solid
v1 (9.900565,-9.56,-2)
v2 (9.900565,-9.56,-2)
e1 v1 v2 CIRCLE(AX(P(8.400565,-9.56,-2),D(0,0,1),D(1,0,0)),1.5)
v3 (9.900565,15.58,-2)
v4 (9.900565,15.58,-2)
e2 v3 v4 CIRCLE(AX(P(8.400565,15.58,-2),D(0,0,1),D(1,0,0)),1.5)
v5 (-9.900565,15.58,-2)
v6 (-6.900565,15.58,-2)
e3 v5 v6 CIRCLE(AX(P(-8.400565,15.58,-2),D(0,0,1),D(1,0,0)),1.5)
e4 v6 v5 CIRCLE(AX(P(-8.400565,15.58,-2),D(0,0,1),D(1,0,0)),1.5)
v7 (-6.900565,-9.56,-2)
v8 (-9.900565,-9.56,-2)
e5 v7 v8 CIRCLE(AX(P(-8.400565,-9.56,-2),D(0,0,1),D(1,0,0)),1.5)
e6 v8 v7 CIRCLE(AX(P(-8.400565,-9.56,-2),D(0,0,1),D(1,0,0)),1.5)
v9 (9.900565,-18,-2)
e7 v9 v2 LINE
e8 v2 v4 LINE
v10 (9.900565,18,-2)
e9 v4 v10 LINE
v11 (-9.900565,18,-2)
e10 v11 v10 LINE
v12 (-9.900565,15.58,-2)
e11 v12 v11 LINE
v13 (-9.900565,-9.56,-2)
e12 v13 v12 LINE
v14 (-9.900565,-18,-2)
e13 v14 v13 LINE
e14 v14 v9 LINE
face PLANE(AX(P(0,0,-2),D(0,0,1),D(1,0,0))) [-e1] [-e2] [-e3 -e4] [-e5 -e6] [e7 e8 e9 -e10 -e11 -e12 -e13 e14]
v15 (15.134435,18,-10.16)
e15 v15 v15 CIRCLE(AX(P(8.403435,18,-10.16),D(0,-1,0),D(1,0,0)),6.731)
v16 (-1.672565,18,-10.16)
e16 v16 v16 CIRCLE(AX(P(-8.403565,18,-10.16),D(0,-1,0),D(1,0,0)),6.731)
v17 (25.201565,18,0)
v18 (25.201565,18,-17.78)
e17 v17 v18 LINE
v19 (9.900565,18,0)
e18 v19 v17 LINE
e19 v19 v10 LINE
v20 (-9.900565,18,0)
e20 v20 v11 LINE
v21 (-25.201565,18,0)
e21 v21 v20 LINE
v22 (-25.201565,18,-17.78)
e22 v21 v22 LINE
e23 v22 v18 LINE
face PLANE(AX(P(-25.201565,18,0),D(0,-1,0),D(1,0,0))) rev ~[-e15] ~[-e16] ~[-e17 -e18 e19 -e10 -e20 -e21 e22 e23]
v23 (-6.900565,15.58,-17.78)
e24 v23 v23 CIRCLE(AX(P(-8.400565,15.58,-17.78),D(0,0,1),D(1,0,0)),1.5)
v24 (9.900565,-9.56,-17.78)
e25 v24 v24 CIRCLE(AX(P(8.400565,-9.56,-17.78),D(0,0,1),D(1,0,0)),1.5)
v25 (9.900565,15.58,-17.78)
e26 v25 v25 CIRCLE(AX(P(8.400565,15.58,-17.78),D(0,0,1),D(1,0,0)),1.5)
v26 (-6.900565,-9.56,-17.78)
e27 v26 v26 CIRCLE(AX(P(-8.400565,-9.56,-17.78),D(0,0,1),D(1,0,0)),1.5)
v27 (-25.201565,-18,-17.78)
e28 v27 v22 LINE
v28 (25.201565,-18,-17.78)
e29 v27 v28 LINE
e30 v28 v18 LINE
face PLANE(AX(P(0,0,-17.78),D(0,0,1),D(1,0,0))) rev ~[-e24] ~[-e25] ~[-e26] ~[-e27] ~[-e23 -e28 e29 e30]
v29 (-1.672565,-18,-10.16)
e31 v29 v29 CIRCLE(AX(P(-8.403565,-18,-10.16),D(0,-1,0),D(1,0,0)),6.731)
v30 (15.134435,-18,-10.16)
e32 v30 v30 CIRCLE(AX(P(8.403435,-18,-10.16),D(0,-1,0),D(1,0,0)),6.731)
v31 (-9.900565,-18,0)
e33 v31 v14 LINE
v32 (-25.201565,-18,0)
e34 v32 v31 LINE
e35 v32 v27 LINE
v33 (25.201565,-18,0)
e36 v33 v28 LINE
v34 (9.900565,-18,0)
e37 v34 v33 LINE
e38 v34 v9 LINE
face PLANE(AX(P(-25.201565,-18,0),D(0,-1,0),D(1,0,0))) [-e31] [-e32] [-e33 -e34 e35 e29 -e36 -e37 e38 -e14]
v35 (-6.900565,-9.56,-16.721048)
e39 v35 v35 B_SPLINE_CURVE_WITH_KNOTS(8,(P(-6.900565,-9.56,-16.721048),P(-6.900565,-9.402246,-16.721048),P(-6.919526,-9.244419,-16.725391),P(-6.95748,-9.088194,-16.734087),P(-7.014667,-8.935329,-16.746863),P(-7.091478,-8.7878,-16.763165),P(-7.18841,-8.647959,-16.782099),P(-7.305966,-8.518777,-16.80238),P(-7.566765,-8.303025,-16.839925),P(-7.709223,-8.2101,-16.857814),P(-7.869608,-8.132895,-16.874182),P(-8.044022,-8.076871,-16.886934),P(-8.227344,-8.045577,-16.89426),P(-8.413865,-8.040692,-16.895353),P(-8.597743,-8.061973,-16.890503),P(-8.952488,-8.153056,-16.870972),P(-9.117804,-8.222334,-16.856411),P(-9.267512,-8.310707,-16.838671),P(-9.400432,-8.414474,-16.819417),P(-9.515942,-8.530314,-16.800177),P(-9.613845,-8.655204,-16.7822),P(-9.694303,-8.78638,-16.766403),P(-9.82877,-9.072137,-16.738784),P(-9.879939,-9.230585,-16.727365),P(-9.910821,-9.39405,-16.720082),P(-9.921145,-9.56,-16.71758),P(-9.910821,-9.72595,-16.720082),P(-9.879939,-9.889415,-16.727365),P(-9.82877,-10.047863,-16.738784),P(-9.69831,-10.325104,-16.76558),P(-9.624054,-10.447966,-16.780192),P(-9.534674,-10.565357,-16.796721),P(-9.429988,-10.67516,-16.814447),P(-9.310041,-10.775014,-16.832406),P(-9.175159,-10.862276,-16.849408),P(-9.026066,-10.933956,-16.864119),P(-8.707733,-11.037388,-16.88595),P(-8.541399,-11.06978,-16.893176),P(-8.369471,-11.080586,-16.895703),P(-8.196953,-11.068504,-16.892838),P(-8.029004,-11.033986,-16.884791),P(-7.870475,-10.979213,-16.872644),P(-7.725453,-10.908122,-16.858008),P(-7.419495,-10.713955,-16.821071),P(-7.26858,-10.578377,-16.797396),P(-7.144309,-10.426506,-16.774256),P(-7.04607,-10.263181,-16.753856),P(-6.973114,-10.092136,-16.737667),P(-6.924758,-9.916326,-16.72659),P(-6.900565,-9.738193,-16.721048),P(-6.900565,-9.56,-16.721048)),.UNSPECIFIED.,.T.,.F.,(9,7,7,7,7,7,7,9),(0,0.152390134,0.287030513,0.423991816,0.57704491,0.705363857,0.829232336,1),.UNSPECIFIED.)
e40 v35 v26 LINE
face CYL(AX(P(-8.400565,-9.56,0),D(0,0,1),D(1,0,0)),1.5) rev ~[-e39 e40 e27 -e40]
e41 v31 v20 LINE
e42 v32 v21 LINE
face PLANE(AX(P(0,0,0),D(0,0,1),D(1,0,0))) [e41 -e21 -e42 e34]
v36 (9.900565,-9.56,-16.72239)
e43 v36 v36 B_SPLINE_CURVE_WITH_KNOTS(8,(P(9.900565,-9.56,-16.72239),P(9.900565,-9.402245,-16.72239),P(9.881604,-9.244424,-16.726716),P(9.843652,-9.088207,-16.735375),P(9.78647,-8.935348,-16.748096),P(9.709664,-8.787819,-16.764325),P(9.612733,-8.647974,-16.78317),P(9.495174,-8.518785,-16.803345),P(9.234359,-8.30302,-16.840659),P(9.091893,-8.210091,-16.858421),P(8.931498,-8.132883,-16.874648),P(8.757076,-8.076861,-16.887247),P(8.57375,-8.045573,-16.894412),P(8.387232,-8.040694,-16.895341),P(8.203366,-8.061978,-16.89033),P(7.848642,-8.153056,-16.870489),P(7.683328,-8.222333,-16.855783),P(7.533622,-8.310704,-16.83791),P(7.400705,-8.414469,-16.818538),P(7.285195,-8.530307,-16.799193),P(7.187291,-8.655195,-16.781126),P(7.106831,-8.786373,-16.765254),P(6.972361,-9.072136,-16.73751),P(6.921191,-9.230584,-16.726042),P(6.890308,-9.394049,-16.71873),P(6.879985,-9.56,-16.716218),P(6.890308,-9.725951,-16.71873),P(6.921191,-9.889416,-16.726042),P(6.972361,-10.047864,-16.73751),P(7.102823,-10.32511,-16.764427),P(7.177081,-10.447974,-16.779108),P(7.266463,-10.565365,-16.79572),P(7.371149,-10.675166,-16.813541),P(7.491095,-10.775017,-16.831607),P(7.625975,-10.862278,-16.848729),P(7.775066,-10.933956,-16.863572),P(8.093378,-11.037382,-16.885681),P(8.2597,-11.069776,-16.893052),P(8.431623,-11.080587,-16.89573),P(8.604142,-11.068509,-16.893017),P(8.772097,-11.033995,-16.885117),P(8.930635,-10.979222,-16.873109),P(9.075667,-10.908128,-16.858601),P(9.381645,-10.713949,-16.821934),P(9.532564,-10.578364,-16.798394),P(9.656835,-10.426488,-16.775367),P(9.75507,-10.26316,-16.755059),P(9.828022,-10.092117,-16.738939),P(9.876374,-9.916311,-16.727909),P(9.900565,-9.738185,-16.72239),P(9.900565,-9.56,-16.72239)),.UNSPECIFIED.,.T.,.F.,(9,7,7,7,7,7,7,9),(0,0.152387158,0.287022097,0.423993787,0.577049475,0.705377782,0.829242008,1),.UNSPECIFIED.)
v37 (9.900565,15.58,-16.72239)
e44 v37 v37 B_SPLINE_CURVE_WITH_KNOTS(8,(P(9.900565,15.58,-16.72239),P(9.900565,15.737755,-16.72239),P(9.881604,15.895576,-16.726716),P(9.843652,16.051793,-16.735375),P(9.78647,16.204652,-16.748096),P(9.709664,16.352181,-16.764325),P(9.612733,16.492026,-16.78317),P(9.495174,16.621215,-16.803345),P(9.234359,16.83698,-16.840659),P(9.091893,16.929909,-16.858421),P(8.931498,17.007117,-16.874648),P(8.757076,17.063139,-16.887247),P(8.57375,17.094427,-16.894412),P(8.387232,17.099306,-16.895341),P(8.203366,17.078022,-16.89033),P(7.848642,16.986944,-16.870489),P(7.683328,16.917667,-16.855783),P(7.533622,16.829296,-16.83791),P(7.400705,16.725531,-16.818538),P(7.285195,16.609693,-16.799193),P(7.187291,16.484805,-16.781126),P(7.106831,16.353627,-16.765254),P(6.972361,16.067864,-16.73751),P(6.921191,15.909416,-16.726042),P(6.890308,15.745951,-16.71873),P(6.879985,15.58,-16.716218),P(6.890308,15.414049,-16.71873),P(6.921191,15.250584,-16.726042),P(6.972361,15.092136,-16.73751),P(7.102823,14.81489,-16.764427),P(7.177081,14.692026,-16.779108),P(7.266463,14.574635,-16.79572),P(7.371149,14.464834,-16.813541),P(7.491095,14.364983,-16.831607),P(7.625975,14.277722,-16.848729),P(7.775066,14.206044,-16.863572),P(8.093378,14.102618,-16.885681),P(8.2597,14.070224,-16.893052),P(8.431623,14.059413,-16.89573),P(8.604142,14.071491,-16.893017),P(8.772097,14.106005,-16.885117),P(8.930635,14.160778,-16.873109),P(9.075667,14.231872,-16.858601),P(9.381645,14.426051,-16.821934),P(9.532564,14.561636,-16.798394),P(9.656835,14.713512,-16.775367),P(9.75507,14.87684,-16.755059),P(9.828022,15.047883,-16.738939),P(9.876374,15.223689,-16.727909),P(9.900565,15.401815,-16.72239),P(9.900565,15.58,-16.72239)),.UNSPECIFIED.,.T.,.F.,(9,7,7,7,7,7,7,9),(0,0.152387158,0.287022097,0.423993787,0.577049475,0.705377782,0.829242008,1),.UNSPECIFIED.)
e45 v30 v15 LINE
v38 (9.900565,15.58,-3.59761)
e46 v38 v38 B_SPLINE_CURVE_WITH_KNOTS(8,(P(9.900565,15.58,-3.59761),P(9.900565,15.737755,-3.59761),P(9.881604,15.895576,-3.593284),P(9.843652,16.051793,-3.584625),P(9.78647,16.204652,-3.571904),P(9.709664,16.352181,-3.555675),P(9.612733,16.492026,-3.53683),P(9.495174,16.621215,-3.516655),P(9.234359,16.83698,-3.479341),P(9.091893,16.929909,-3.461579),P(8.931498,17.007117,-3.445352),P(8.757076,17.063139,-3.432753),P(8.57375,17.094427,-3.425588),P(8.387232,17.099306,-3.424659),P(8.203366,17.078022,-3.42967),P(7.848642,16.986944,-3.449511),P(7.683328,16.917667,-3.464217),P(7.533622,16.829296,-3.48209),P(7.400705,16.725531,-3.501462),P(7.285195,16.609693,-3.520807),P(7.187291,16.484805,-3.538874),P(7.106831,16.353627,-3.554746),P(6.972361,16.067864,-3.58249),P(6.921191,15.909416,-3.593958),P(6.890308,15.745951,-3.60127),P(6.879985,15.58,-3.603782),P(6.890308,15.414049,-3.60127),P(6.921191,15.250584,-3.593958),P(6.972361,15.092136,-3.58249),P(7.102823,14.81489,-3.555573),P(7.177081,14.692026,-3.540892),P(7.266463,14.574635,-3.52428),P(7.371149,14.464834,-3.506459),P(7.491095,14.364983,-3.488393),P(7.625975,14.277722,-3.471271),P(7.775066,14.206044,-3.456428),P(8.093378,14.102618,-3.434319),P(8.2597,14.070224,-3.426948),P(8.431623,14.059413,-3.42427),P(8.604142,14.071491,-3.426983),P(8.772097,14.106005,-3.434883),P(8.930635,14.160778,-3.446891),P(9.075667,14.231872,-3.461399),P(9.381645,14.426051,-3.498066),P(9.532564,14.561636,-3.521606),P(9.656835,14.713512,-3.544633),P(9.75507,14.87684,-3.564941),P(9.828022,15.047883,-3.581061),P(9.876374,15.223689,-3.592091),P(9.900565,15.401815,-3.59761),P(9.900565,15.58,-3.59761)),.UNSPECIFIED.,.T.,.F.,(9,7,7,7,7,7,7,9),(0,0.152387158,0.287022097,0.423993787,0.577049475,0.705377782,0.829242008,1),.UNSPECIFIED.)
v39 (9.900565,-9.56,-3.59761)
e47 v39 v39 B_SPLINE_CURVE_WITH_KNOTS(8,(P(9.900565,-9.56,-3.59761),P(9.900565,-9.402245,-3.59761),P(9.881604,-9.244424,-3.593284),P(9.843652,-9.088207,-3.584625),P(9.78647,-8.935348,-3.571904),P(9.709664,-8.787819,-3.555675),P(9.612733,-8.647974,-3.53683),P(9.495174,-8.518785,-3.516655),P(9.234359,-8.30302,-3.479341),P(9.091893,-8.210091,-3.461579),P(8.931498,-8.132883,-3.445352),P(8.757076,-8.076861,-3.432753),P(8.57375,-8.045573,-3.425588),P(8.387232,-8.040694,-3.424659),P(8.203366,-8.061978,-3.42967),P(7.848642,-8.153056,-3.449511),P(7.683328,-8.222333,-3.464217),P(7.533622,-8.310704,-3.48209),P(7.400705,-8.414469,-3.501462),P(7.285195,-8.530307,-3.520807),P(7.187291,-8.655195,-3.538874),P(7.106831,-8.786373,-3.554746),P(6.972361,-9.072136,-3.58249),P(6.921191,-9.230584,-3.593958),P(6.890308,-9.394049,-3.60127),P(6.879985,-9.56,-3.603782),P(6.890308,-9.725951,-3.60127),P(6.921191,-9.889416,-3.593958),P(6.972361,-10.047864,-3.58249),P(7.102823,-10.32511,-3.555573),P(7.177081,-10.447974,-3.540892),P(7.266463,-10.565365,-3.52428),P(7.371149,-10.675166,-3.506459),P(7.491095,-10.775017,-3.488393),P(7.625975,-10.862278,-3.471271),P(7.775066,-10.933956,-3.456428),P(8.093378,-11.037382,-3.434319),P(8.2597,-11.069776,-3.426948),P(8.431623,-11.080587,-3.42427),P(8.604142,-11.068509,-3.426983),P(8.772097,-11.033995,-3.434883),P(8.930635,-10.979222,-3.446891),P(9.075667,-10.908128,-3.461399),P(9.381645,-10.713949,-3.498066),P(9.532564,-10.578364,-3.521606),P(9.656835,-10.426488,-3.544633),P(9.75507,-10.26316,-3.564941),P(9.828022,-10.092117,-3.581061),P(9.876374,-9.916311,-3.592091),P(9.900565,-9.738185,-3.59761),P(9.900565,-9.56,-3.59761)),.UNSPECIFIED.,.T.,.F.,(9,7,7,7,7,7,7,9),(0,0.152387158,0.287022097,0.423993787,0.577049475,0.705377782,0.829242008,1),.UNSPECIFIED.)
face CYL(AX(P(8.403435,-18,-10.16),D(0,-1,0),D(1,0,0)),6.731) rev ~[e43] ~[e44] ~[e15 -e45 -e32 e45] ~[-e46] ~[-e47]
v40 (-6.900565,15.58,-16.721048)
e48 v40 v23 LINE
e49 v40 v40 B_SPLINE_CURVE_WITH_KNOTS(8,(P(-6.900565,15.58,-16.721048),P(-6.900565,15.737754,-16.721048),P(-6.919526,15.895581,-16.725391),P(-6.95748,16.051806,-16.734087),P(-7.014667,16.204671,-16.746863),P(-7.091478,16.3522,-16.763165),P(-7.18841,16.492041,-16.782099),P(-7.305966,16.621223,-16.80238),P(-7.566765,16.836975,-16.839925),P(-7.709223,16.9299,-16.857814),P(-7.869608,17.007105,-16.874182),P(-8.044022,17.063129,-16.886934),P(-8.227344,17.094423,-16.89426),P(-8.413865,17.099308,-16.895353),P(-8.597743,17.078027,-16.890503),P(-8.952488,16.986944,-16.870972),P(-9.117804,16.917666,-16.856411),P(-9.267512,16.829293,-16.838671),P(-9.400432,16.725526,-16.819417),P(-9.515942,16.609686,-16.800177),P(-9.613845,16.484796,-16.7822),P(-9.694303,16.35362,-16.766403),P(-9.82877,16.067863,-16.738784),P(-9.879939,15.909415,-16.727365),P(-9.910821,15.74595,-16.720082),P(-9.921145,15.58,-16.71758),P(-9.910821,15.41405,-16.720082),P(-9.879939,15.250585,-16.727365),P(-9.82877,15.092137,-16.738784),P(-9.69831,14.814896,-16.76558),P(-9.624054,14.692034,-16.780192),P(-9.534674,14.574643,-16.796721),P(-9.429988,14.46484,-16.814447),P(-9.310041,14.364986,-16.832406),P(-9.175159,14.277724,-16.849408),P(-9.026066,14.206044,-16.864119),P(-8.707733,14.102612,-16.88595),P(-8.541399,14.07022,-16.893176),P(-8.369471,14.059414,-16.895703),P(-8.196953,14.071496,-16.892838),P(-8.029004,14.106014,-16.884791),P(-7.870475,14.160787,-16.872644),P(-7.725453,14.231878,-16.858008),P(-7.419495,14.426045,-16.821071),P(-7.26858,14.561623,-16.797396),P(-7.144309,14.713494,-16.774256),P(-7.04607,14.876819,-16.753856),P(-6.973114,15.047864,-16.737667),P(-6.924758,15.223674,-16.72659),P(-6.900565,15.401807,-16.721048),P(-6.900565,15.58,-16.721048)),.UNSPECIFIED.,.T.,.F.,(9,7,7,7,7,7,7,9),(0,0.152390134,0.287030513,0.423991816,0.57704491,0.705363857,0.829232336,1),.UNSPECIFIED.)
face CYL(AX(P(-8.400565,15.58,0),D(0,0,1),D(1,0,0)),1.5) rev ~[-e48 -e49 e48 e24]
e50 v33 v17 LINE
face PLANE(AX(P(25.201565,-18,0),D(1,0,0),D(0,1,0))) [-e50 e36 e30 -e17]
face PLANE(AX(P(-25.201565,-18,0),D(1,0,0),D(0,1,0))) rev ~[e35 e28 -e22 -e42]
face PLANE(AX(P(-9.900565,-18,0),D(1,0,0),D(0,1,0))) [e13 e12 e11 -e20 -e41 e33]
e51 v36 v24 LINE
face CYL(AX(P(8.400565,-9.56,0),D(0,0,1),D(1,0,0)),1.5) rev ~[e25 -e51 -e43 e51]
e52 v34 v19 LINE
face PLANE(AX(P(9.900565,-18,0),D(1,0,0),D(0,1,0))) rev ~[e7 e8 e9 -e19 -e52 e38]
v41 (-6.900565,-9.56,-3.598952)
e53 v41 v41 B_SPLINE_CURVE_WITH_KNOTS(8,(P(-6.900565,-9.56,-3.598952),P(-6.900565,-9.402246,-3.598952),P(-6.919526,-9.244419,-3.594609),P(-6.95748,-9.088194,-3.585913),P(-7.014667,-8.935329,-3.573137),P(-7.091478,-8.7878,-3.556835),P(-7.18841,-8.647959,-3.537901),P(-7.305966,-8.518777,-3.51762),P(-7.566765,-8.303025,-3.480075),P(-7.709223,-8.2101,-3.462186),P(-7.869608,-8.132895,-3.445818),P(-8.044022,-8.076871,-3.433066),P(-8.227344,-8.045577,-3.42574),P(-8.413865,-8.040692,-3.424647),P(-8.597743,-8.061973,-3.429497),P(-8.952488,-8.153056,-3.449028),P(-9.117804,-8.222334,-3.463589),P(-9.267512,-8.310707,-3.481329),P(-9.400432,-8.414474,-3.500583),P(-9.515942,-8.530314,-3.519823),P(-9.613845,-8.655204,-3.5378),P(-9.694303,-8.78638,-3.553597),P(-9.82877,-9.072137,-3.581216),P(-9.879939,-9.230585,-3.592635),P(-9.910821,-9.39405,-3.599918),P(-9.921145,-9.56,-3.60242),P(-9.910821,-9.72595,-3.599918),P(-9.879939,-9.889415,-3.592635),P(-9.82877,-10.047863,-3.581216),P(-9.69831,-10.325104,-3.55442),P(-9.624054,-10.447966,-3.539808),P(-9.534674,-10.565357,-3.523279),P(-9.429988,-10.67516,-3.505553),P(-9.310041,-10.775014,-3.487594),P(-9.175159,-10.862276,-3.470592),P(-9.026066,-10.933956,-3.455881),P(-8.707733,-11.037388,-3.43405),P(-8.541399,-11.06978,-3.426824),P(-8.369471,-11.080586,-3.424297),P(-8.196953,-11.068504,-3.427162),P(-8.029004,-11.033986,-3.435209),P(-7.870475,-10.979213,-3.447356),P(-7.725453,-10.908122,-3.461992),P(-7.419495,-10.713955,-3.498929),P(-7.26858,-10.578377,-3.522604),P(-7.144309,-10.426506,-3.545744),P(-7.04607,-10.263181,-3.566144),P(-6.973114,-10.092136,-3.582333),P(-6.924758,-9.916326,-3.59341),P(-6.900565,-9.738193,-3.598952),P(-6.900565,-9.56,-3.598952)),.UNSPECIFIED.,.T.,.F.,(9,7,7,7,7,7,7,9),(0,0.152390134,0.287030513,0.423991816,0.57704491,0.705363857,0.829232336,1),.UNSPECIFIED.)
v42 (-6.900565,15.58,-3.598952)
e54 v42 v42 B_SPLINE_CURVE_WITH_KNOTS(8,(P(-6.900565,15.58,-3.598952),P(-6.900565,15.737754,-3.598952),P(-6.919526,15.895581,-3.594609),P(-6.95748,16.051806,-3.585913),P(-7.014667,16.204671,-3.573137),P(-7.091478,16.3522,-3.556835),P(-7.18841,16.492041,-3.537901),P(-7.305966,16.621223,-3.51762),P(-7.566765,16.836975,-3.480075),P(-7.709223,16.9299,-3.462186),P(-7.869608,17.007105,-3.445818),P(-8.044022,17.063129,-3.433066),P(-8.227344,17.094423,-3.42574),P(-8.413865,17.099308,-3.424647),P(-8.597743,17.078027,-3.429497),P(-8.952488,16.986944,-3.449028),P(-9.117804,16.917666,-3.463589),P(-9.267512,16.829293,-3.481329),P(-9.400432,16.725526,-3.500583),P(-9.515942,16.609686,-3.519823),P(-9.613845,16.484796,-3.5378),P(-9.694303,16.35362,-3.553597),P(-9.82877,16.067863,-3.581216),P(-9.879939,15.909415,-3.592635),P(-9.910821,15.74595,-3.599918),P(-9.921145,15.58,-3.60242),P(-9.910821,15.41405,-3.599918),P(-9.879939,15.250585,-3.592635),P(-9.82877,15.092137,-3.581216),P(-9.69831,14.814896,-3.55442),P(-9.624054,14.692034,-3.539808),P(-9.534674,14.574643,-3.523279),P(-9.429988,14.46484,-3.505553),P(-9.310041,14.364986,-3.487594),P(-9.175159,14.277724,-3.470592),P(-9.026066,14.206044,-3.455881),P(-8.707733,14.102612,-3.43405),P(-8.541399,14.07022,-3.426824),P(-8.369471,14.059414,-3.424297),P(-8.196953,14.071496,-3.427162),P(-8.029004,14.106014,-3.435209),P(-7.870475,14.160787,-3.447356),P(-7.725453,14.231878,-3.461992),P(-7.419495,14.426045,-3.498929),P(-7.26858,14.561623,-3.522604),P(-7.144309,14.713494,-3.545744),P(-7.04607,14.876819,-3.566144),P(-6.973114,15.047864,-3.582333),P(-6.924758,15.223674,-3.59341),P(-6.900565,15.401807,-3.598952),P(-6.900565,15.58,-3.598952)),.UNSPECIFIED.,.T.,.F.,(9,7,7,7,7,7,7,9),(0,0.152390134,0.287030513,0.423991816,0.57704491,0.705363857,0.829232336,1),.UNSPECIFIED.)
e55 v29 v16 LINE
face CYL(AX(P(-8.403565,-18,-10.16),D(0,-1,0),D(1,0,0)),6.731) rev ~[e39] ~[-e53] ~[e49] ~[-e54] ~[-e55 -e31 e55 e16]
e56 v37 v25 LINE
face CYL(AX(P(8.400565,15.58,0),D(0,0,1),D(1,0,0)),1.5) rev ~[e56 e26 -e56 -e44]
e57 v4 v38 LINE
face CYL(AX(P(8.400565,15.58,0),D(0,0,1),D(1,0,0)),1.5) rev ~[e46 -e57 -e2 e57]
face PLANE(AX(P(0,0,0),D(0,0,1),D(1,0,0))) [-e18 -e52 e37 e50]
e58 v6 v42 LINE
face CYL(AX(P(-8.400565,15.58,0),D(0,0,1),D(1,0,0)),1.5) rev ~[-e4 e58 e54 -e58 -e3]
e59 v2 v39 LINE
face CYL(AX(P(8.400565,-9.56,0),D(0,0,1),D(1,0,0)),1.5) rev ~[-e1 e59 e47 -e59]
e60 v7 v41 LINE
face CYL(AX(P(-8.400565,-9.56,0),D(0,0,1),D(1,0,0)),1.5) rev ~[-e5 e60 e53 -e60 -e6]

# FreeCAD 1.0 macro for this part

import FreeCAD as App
import Part
import Sketcher

V = App.Vector
Q = App.Units.Quantity

doc = App.newDocument("Part")
body = doc.addObject("PartDesign::Body", "Body")

# Sketch on XY plane
sketch1 = body.newObject("Sketcher::SketchObject", "Sketch")
sketch1.AttachmentSupport = (doc.getObject("XY_Plane"), [""])
sketch1.MapMode = "FlatFace"
sketch1.addGeometry([
    Part.LineSegment(V(-25.2, 18, 0), V(-25.2, -18, 0)),  # 0
    Part.LineSegment(V(-25.2, -18, 0), V(25.2, -18, 0)),  # 1
    Part.LineSegment(V(25.2, -18, 0), V(25.2, 18, 0)),  # 2
    Part.LineSegment(V(25.2, 18, 0), V(-25.2, 18, 0)),  # 3
    Part.Circle(V(-8.4, -9.6, 0), V(0, 0, 1), 1.5),  # 4
    Part.Circle(V(8.4, -9.6, 0), V(0, 0, 1), 1.5),  # 5
    Part.Circle(V(-8.4, 15.6, 0), V(0, 0, 1), 1.5),  # 6
    Part.Circle(V(8.4, 15.6, 0), V(0, 0, 1), 1.5),  # 7
], False)
sketch1.addConstraint([
    Sketcher.Constraint("Coincident", 0, 2, 1, 1),
    Sketcher.Constraint("Coincident", 1, 2, 2, 1),
    Sketcher.Constraint("Coincident", 2, 2, 3, 1),
    Sketcher.Constraint("Coincident", 3, 2, 0, 1),
    Sketcher.Constraint("Vertical", 0),
    Sketcher.Constraint("Horizontal", 1),
    Sketcher.Constraint("Vertical", 2),
    Sketcher.Constraint("Horizontal", 3),
    Sketcher.Constraint("Equal", 4, 5),
    Sketcher.Constraint("Equal", 5, 6),
    Sketcher.Constraint("Equal", 6, 7),
    Sketcher.Constraint("Symmetric", 0, 2, 2, 2, -1, 1),
    Sketcher.Constraint("Symmetric", 4, 3, 5, 3, -2),
    Sketcher.Constraint("Symmetric", 6, 3, 7, 3, -2),
    Sketcher.Constraint("Vertical", 4, 3, 6, 3),
    Sketcher.Constraint("Diameter", 4, Q("3 mm")),
    Sketcher.Constraint("DistanceY", 0, 2, 0, 1, Q("36 mm")),
    Sketcher.Constraint("DistanceY", 4, 3, -1, 1, Q("9.56 mm")),
    Sketcher.Constraint("DistanceY", -1, 1, 6, 3, Q("15.58 mm")),
    Sketcher.Constraint("DistanceX", 0, 2, 4, 3, Q("16.801 mm")),
    Sketcher.Constraint("DistanceX", 1, 1, 1, 2, Q("50.40313 mm")),
])
pad1 = body.newObject("PartDesign::Pad", "Pad")
pad1.Profile = sketch1
pad1.Length = 17.78
pad1.Reversed = True

# Sketch on XZ plane
sketch2 = body.newObject("Sketcher::SketchObject", "Sketch001")
sketch2.AttachmentSupport = (doc.getObject("XZ_Plane"), [""])
sketch2.MapMode = "FlatFace"
sketch2.AttachmentOffset = App.Placement(V(0, 0, 18), App.Rotation())
sketch2.addGeometry([
    Part.Circle(V(-8, -10, 0), V(0, 0, 1), 7),
    Part.Circle(V(8, -10, 0), V(0, 0, 1), 7),
], False)
sketch2.addConstraint([
    Sketcher.Constraint("Equal", 0, 1),
    Sketcher.Constraint("Horizontal", 0, 3, 1, 3),
    Sketcher.Constraint("Diameter", 0, Q("13.462 mm")),
    Sketcher.Constraint("DistanceY", 0, 3, -1, 1, Q("10.16 mm")),
    Sketcher.Constraint("DistanceX", 0, 3, 1, 3, Q("16.807 mm")),
    Sketcher.Constraint("DistanceX", 0, 3, -1, 1, Q("8.403565 mm")),
])
pocket1 = body.newObject("PartDesign::Pocket", "Pocket")
pocket1.Profile = sketch2
pocket1.Length = 63.2

# Sketch on XY plane
sketch3 = body.newObject("Sketcher::SketchObject", "Sketch002")
sketch3.AttachmentSupport = (doc.getObject("XY_Plane"), [""])
sketch3.MapMode = "FlatFace"
sketch3.addGeometry([
    Part.LineSegment(V(-10, 18, 0), V(-10, -18, 0)),
    Part.LineSegment(V(-10, -18, 0), V(10, -18, 0)),
    Part.LineSegment(V(10, -18, 0), V(10, 18, 0)),
    Part.LineSegment(V(10, 18, 0), V(-10, 18, 0)),
], False)
sketch3.addConstraint([
    Sketcher.Constraint("Coincident", 0, 2, 1, 1),
    Sketcher.Constraint("Coincident", 1, 2, 2, 1),
    Sketcher.Constraint("Coincident", 2, 2, 3, 1),
    Sketcher.Constraint("Coincident", 3, 2, 0, 1),
    Sketcher.Constraint("Vertical", 0),
    Sketcher.Constraint("Horizontal", 1),
    Sketcher.Constraint("Vertical", 2),
    Sketcher.Constraint("Horizontal", 3),
    Sketcher.Constraint("Symmetric", 0, 2, 2, 2, -1, 1),
    Sketcher.Constraint("DistanceY", 0, 2, 0, 1, Q("36 mm")),
    Sketcher.Constraint("DistanceX", 1, 1, 1, 2, Q("19.80113 mm")),
])
pocket2 = body.newObject("PartDesign::Pocket", "Pocket001")
pocket2.Profile = sketch3
pocket2.Length = 2

doc.recompute()
